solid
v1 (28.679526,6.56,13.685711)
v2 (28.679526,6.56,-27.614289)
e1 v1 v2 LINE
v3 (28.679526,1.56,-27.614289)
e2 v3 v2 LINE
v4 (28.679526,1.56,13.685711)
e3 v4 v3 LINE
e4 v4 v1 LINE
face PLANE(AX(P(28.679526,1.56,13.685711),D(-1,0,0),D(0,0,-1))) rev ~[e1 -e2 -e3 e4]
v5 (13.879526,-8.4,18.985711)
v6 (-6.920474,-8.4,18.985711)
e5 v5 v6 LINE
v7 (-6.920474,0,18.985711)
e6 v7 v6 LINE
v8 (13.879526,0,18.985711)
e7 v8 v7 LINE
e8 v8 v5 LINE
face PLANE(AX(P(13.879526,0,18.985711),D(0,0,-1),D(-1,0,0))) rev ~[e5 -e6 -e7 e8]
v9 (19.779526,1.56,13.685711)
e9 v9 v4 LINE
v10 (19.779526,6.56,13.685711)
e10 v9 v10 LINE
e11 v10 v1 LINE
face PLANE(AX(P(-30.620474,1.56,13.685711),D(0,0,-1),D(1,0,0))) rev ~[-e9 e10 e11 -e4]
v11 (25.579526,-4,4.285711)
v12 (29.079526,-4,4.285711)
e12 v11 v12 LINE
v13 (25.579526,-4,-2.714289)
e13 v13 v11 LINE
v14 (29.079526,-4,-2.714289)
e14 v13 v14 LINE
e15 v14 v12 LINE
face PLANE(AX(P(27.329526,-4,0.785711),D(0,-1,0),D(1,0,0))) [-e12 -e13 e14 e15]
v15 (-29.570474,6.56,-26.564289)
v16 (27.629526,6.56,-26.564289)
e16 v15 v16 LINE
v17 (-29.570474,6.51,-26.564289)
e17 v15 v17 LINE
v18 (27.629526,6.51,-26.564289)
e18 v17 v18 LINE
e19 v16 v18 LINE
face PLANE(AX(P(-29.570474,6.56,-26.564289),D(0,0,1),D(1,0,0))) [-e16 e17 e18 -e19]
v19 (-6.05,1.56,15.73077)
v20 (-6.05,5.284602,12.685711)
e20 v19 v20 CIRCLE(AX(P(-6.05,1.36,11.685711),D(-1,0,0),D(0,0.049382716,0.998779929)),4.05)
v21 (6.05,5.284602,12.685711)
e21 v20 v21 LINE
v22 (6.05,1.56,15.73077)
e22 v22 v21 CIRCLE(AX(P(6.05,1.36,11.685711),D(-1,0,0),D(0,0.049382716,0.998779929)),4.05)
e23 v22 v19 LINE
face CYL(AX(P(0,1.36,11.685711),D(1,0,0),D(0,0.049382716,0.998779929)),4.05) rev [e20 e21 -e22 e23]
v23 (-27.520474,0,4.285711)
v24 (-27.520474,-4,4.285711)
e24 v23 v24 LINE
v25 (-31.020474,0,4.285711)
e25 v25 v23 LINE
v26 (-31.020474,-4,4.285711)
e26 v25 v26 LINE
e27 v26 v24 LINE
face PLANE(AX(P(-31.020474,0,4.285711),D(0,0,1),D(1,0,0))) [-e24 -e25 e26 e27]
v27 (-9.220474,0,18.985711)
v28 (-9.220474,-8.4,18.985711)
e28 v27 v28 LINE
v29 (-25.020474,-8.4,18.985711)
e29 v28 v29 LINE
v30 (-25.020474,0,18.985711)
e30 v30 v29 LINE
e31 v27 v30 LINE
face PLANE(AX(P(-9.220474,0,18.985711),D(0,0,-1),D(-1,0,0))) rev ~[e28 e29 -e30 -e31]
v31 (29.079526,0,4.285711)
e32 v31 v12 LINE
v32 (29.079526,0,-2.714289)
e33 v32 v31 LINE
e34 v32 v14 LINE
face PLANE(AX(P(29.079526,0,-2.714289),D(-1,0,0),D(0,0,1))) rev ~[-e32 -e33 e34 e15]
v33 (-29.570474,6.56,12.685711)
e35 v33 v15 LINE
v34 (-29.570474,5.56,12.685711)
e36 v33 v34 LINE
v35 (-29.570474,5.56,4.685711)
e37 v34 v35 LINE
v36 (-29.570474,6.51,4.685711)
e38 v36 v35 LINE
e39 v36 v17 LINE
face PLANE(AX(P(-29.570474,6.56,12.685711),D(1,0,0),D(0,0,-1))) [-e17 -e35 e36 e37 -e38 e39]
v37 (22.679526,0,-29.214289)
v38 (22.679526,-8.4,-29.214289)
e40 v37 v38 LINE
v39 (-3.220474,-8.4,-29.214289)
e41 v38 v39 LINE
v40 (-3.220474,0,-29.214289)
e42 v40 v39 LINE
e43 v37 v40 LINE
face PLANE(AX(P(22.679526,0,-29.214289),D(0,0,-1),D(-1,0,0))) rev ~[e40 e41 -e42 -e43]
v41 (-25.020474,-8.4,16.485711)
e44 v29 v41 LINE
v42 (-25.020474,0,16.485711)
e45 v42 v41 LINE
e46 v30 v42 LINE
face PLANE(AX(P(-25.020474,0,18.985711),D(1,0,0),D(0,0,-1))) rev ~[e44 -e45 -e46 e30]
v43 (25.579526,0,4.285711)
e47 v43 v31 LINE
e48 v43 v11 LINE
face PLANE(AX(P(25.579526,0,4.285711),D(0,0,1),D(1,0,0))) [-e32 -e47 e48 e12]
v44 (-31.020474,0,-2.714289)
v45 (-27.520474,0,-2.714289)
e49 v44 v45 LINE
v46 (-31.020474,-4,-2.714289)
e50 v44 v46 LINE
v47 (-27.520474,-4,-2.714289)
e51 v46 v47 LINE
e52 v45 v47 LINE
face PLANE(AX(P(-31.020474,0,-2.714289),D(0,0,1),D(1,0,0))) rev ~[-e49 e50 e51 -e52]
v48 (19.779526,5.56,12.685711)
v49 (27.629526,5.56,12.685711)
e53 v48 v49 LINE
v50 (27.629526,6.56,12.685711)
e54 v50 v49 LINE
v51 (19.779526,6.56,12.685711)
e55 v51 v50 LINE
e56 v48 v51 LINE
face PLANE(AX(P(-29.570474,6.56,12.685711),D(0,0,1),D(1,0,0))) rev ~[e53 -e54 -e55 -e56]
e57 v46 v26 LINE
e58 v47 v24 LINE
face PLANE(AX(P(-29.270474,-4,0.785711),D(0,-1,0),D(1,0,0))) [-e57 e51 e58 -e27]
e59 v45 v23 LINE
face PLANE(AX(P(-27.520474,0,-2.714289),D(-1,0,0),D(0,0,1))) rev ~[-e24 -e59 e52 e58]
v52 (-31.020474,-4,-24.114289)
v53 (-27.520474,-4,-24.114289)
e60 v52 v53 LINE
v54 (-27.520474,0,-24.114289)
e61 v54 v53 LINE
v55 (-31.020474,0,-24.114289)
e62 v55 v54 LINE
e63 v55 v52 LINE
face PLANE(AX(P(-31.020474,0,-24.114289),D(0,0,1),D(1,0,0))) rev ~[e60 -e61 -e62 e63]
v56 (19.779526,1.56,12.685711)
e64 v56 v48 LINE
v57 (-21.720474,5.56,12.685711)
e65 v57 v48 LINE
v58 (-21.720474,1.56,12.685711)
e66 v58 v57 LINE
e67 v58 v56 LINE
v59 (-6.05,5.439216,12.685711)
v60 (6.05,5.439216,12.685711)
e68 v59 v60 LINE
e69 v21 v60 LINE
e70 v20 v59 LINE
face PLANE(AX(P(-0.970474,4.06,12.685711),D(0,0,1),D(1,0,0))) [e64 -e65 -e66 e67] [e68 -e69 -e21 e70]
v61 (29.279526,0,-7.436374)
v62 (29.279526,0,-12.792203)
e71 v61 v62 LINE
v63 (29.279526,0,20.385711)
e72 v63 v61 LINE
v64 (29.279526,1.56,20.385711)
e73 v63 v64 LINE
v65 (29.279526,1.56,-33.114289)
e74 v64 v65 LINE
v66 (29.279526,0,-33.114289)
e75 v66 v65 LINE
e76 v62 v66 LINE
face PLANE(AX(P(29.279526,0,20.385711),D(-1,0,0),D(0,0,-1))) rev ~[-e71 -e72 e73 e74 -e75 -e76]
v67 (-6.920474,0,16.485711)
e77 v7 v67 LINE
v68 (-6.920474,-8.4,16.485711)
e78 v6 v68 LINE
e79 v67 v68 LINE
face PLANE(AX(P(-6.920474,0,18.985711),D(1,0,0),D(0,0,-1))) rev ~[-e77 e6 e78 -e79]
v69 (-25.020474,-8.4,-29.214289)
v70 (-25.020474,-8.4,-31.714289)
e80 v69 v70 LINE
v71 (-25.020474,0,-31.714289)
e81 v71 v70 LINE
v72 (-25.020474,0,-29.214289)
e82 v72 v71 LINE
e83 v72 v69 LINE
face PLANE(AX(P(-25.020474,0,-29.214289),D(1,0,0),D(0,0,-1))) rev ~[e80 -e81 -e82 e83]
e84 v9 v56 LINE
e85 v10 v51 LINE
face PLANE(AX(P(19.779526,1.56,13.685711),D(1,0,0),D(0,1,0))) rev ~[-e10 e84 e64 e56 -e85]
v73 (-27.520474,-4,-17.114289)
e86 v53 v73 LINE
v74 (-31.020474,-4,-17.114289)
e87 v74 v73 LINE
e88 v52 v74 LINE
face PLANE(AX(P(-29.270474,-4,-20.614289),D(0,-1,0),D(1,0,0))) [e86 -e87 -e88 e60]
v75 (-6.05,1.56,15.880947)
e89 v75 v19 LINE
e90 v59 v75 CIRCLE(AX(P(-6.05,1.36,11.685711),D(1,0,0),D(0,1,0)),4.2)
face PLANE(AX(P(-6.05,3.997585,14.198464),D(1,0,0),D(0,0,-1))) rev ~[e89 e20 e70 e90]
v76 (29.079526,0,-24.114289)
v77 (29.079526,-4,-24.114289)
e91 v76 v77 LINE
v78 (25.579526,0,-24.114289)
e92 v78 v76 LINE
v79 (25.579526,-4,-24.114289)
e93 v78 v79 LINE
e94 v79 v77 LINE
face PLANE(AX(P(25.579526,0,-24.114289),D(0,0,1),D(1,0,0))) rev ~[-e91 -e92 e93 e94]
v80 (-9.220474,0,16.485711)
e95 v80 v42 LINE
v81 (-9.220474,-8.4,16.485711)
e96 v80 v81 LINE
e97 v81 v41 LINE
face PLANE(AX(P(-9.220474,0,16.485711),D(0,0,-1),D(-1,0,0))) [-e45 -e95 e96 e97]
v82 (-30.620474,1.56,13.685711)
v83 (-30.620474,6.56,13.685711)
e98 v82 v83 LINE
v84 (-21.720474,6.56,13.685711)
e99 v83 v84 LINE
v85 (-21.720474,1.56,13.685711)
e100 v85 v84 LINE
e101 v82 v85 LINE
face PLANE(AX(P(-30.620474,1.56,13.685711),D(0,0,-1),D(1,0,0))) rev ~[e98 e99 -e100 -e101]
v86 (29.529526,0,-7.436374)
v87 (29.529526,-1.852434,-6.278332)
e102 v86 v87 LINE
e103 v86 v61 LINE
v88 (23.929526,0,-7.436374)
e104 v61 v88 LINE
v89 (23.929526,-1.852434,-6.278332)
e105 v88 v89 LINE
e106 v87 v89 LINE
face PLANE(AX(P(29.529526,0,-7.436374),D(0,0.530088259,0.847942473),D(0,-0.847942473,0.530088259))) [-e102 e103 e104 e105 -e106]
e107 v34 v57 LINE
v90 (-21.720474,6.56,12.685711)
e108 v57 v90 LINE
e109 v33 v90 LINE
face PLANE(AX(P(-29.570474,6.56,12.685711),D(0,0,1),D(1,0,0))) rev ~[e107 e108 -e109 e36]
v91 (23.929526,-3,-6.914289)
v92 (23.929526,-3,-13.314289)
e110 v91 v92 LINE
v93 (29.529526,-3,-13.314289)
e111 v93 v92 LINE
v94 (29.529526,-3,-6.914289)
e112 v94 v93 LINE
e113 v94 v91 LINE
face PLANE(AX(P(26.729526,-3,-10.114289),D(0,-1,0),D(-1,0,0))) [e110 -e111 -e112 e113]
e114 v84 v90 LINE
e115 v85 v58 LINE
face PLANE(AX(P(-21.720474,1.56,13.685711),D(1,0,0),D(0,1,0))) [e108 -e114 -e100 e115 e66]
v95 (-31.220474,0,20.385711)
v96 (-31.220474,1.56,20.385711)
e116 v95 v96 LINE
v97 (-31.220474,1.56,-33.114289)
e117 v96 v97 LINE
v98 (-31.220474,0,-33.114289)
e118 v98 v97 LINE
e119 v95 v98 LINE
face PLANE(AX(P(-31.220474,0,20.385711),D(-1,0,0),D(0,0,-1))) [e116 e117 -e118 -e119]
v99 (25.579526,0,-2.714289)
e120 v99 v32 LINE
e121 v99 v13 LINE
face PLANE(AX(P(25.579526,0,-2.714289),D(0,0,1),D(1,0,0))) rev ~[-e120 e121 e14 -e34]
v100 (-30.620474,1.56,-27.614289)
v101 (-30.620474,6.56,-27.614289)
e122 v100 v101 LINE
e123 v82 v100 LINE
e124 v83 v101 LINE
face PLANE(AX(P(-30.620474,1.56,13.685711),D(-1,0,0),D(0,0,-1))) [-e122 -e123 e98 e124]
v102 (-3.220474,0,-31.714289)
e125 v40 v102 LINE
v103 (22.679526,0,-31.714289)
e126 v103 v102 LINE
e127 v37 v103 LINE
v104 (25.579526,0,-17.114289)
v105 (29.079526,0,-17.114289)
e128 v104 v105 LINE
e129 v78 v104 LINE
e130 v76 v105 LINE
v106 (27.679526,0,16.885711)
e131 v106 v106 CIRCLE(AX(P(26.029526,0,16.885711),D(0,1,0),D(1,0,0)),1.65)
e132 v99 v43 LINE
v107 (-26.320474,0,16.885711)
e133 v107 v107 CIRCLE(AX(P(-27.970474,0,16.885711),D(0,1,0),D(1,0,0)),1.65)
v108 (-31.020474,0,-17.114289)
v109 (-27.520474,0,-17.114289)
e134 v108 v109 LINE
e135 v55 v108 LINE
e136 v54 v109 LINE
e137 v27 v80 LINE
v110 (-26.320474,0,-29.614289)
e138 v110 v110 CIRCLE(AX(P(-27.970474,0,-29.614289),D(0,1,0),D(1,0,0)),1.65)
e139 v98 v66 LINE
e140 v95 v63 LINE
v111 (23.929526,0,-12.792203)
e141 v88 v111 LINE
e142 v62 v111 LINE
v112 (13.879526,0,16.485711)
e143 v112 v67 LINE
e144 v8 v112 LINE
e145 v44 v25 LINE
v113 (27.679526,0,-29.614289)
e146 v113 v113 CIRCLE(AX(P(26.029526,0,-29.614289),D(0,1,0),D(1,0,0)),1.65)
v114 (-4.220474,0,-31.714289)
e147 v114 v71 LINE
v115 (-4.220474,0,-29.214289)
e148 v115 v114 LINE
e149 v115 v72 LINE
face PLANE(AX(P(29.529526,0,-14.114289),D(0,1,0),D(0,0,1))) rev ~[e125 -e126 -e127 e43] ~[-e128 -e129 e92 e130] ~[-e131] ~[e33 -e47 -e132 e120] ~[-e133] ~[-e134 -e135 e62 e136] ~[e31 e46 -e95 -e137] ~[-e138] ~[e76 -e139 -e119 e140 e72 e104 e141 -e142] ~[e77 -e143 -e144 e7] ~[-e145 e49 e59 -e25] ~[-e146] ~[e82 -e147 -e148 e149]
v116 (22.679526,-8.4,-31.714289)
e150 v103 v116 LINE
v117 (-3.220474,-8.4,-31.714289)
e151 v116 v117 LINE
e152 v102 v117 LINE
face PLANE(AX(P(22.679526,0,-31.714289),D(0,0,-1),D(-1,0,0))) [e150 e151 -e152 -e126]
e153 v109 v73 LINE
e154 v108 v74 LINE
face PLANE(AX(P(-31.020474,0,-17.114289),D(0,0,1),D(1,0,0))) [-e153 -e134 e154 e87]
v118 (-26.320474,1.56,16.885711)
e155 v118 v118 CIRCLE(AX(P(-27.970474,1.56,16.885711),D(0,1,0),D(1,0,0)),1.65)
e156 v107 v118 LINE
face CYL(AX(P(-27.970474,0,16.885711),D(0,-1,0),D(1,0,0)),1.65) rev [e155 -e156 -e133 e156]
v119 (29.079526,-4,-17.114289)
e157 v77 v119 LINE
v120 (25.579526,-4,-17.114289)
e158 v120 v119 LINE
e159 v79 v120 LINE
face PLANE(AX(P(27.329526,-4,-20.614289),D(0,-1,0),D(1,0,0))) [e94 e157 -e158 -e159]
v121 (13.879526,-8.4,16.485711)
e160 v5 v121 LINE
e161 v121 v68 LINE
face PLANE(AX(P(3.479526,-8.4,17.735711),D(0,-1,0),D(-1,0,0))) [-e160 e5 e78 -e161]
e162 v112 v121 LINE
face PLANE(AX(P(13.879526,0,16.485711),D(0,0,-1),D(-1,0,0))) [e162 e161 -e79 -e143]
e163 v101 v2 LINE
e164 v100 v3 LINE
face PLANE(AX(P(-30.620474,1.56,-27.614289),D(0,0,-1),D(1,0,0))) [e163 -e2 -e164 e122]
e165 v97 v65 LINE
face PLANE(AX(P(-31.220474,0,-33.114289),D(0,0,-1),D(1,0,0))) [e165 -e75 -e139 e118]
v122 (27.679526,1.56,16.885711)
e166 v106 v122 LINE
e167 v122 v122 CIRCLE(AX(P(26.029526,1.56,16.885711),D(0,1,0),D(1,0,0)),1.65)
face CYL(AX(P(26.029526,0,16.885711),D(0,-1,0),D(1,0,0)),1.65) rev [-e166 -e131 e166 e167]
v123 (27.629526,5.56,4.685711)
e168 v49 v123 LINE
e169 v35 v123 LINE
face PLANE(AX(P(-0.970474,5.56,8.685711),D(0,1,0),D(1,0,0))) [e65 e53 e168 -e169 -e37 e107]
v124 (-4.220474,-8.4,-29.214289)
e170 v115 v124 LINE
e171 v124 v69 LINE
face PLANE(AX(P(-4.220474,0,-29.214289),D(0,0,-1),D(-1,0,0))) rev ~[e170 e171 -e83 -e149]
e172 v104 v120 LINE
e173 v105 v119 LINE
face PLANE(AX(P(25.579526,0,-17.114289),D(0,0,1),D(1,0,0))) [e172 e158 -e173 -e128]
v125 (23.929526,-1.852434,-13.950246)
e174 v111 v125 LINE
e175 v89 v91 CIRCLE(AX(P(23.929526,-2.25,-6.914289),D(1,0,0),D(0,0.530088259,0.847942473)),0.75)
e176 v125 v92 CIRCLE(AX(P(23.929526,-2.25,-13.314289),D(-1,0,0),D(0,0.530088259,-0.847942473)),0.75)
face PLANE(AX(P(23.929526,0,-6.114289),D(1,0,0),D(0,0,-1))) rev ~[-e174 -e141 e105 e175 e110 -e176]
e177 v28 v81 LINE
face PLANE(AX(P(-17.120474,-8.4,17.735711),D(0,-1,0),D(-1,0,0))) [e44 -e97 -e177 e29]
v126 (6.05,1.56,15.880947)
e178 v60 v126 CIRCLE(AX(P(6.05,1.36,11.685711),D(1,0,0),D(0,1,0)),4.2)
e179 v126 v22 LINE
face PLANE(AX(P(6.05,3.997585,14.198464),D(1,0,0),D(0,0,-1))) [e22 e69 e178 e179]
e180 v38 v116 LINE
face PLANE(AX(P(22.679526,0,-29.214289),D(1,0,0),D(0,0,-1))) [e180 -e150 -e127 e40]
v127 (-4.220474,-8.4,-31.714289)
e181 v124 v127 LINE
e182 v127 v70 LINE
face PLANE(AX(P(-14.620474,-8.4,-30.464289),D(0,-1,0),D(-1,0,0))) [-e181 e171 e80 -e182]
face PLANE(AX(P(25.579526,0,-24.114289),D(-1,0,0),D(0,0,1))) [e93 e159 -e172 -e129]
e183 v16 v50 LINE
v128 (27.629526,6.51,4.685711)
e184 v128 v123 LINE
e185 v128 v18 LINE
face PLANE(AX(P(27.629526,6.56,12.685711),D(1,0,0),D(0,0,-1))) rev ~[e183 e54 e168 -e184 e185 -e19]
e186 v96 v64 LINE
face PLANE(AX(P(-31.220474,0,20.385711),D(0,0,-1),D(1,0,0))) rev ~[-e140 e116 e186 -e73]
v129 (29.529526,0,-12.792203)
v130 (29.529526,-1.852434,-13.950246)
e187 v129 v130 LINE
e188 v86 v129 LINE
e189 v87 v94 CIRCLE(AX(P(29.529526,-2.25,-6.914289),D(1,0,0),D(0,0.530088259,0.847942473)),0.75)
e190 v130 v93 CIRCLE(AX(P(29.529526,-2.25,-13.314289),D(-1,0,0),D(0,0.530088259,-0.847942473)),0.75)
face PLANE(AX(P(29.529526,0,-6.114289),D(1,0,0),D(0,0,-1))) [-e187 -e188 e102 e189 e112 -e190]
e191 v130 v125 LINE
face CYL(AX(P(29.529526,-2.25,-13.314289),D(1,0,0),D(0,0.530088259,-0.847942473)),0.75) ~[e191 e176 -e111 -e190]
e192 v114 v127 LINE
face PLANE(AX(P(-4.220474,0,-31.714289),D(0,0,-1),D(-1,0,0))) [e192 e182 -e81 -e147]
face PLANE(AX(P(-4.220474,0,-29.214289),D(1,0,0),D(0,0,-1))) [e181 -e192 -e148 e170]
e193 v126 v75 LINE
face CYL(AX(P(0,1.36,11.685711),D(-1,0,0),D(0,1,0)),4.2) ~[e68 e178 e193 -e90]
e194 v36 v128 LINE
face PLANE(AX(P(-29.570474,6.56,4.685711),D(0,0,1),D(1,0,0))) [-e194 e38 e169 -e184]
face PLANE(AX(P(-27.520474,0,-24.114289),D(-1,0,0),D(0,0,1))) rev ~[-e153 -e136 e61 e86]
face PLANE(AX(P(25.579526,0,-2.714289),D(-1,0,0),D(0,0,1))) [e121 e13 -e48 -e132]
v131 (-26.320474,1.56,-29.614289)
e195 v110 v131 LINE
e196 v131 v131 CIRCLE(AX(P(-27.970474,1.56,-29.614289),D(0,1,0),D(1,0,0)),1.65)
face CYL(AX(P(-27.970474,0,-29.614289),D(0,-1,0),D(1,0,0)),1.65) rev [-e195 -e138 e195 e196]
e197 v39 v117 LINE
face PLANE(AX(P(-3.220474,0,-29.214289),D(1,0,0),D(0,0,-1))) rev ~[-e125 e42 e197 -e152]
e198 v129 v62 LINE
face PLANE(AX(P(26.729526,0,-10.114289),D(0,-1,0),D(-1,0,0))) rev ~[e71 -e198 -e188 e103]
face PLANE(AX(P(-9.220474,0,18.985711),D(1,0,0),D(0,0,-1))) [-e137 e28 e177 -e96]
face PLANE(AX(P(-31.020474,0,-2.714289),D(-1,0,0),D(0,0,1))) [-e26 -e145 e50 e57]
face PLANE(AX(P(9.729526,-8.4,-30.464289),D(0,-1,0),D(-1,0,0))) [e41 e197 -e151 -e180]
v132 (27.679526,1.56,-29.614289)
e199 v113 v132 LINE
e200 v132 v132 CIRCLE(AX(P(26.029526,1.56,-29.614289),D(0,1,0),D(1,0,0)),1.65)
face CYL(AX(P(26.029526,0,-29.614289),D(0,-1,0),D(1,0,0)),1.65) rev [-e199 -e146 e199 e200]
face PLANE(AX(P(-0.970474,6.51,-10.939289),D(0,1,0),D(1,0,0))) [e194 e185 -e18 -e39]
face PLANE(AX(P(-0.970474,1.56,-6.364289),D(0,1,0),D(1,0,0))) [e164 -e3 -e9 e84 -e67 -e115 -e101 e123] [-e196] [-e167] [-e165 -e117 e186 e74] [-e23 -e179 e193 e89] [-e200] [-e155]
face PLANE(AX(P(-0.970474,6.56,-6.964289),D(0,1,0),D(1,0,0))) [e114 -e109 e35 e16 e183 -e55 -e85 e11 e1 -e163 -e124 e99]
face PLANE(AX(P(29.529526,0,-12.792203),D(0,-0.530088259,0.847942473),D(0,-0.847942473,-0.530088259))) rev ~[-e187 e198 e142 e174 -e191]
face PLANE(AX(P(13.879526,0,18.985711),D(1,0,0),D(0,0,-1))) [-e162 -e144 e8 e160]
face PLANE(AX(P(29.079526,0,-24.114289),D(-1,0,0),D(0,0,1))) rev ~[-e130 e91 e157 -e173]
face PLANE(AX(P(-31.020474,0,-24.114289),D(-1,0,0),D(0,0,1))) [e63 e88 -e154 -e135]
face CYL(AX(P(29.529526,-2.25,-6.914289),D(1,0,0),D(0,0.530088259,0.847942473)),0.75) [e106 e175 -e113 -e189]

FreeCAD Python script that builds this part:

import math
import FreeCAD as App
import Part
import Sketcher

doc = App.newDocument("Part")
params = doc.addObject("Spreadsheet::Sheet", "Params")
for row, (alias, value) in enumerate([
    ("sketch1_diameter", "3.3 mm"),
    ("sketch1_width", "60.5 mm"),
    ("sketch1_height", "53.5 mm"),
    ("pad1_length", "1.56 mm"),
    ("sketch2_width", "59.3 mm"),
    ("sketch2_height", "41.3 mm"),
    ("pad2_length", "5 mm"),
    ("sketch3_height", "5 mm"),
    ("sketch3_width", "41.5 mm"),
    ("pocket1_length", "1 mm"),
    ("sketch4_radius", "4.2 mm"),
    ("sketch4_radius2", "4.05 mm"),
    ("pad3_length", "6.05 mm"),
    ("pad3_length2", "6.05 mm"),
    ("sketch5_width", "15.8 mm"),
    ("sketch5_width2", "20.8 mm"),
    ("sketch5_width3", "25.9 mm"),
    ("sketch5_height", "2.5 mm"),
    ("pad4_length", "8.4 mm"),
    ("sketch6_height", "7 mm"),
    ("sketch6_width", "3.5 mm"),
    ("pad5_length", "4 mm"),
    ("sketch7_height", "8 mm"),
    ("sketch7_width", "57.2 mm"),
    ("pocket2_length", "1 mm"),
    ("sketch8_width", "57.2 mm"),
    ("sketch8_height", "31.25 mm"),
    ("pocket3_length", "0.05 mm"),
    ("sketch9_height", "8 mm"),
    ("sketch9_width", "5.6 mm"),
    ("pad6_length", "3 mm"),
    ("sketch10_width", "3 mm"),
    ("sketch10_radius", "0.75 mm"),
    ("sketch10_height", "0.8 mm"),
    ("pocket4_length", "5.6 mm"),
], start=1):
    params.set(f"A{row}", alias)
    params.set(f"B{row}", "=" + value)
    params.setAlias(f"B{row}", alias)

body = doc.addObject("PartDesign::Body", "Body")

sketch1 = body.newObject("Sketcher::SketchObject", "Sketch")
sketch1.AttachmentSupport = (doc.getObject("XZ_Plane"), [""])
sketch1.MapMode = "FlatFace"
sketch1.addGeometry([
    Part.LineSegment(App.Vector(-31.2, -33.1, 0), App.Vector(-31.2, 20.4, 0)),
    Part.LineSegment(App.Vector(-31.2, 20.4, 0), App.Vector(29.3, 20.4, 0)),
    Part.LineSegment(App.Vector(29.3, 20.4, 0), App.Vector(29.3, -33.1, 0)),
    Part.LineSegment(App.Vector(29.3, -33.1, 0), App.Vector(-31.2, -33.1, 0)),
    Part.Circle(App.Vector(-28, 16.9, 0), App.Vector(0, 0, 1), 1.6),
    Part.Circle(App.Vector(26, 16.9, 0), App.Vector(0, 0, 1), 1.6),
    Part.Circle(App.Vector(-28, -29.6, 0), App.Vector(0, 0, 1), 1.6),
    Part.Circle(App.Vector(26, -29.6, 0), App.Vector(0, 0, 1), 1.6),
], False)
sketch1.addConstraint([
    Sketcher.Constraint("Coincident", 0, 2, 1, 1),
    Sketcher.Constraint("Coincident", 1, 2, 2, 1),
    Sketcher.Constraint("Coincident", 2, 2, 3, 1),
    Sketcher.Constraint("Coincident", 3, 2, 0, 1),
    Sketcher.Constraint("Vertical", 0),
    Sketcher.Constraint("Horizontal", 1),
    Sketcher.Constraint("Vertical", 2),
    Sketcher.Constraint("Horizontal", 3),
    Sketcher.Constraint("Equal", 4, 5),
    Sketcher.Constraint("Equal", 5, 6),
    Sketcher.Constraint("Equal", 6, 7),
    Sketcher.Constraint("Horizontal", 4, 3, 5, 3),
    Sketcher.Constraint("Horizontal", 6, 3, 7, 3),
    Sketcher.Constraint("Vertical", 4, 3, 6, 3),
    Sketcher.Constraint("Vertical", 5, 3, 7, 3),
    Sketcher.Constraint("Diameter", 4, 3.3),
    Sketcher.Constraint("DistanceX", 1, 1, 1, 2, 60.5),
    Sketcher.Constraint("DistanceY", 0, 1, 0, 2, 53.5),
    Sketcher.Constraint("DistanceX", 4, 3, 5, 3, 54.0),
    Sketcher.Constraint("DistanceY", 6, 3, 0, 2, 50.0),
    Sketcher.Constraint("DistanceY", 2, 2, 5, 3, 50.0),
    Sketcher.Constraint("DistanceX", 0, 2, 4, 3, 3.25),
    Sketcher.Constraint("DistanceY", -1, 1, 4, 3, 16.885711),
    Sketcher.Constraint("DistanceX", 4, 3, -1, 1, 27.970474),
])
sketch1.setExpression("Constraints[15]", "Params.sketch1_diameter")
sketch1.setExpression("Constraints[16]", "Params.sketch1_width")
sketch1.setExpression("Constraints[17]", "Params.sketch1_height")
pad1 = body.newObject("PartDesign::Pad", "Pad")
pad1.Profile = sketch1
pad1.setExpression("Length", "Params.pad1_length")
pad1.Reversed = True

sketch2 = body.newObject("Sketcher::SketchObject", "Sketch001")
sketch2.AttachmentSupport = (doc.getObject("XZ_Plane"), [""])
sketch2.MapMode = "FlatFace"
sketch2.AttachmentOffset = App.Placement(App.Vector(0, 0, -1.56), App.Rotation())
sketch2.addGeometry([
    Part.LineSegment(App.Vector(-31, -28, 0), App.Vector(-31, 14, 0)),
    Part.LineSegment(App.Vector(-31, 14, 0), App.Vector(29, 14, 0)),
    Part.LineSegment(App.Vector(29, 14, 0), App.Vector(29, -28, 0)),
    Part.LineSegment(App.Vector(29, -28, 0), App.Vector(-31, -28, 0)),
], False)
sketch2.addConstraint([
    Sketcher.Constraint("Coincident", 0, 2, 1, 1),
    Sketcher.Constraint("Coincident", 1, 2, 2, 1),
    Sketcher.Constraint("Coincident", 2, 2, 3, 1),
    Sketcher.Constraint("Coincident", 3, 2, 0, 1),
    Sketcher.Constraint("Vertical", 0),
    Sketcher.Constraint("Horizontal", 1),
    Sketcher.Constraint("Vertical", 2),
    Sketcher.Constraint("Horizontal", 3),
    Sketcher.Constraint("DistanceX", 1, 1, 1, 2, 59.3),
    Sketcher.Constraint("DistanceY", 0, 1, 0, 2, 41.3),
    Sketcher.Constraint("DistanceY", -1, 1, 0, 2, 13.685711),
    Sketcher.Constraint("DistanceX", 0, 2, -1, 1, 30.620474),
])
sketch2.setExpression("Constraints[8]", "Params.sketch2_width")
sketch2.setExpression("Constraints[9]", "Params.sketch2_height")
pad2 = body.newObject("PartDesign::Pad", "Pad001")
pad2.Profile = sketch2
pad2.setExpression("Length", "Params.pad2_length")
pad2.Reversed = True

sketch3 = body.newObject("Sketcher::SketchObject", "Sketch002")
sketch3.AttachmentSupport = (doc.getObject("XY_Plane"), [""])
sketch3.MapMode = "FlatFace"
sketch3.AttachmentOffset = App.Placement(App.Vector(0, 0, 13.685711), App.Rotation())
sketch3.addGeometry([
    Part.LineSegment(App.Vector(-22, 7, 0), App.Vector(-22, 2, 0)),
    Part.LineSegment(App.Vector(-22, 2, 0), App.Vector(20, 2, 0)),
    Part.LineSegment(App.Vector(20, 2, 0), App.Vector(20, 7, 0)),
    Part.LineSegment(App.Vector(20, 7, 0), App.Vector(-22, 7, 0)),
], False)
sketch3.addConstraint([
    Sketcher.Constraint("Coincident", 0, 2, 1, 1),
    Sketcher.Constraint("Coincident", 1, 2, 2, 1),
    Sketcher.Constraint("Coincident", 2, 2, 3, 1),
    Sketcher.Constraint("Coincident", 3, 2, 0, 1),
    Sketcher.Constraint("Vertical", 0),
    Sketcher.Constraint("Horizontal", 1),
    Sketcher.Constraint("Vertical", 2),
    Sketcher.Constraint("Horizontal", 3),
    Sketcher.Constraint("DistanceY", 0, 2, 0, 1, 5.0),
    Sketcher.Constraint("DistanceX", 1, 1, 1, 2, 41.5),
    Sketcher.Constraint("DistanceY", -1, 1, 0, 2, 1.56),
    Sketcher.Constraint("DistanceX", 0, 2, -1, 1, 21.720474),
])
sketch3.setExpression("Constraints[8]", "Params.sketch3_height")
sketch3.setExpression("Constraints[9]", "Params.sketch3_width")
pocket1 = body.newObject("PartDesign::Pocket", "Pocket")
pocket1.Profile = sketch3
pocket1.setExpression("Length", "Params.pocket1_length")

sketch4 = body.newObject("Sketcher::SketchObject", "Sketch003")
sketch4.AttachmentSupport = (doc.getObject("YZ_Plane"), [""])
sketch4.MapMode = "FlatFace"
sketch4.addGeometry([
    Part.LineSegment(App.Vector(5.41, 11.69, 0), App.Vector(5.56, 11.69, 0)),
    Part.ArcOfCircle(Part.Circle(App.Vector(1.36, 11.69, 0), App.Vector(0, 0, 1), 4.2), math.radians(0), math.radians(87)),
    Part.LineSegment(App.Vector(1.56, 15.88, 0), App.Vector(1.56, 15.73, 0)),
    Part.ArcOfCircle(Part.Circle(App.Vector(1.36, 11.69, 0), App.Vector(0, 0, 1), 4.05), math.radians(0), math.radians(87)),
], False)
sketch4.addConstraint([
    Sketcher.Constraint("Coincident", 0, 2, 1, 1),
    Sketcher.Constraint("Coincident", 1, 2, 2, 1),
    Sketcher.Constraint("Coincident", 2, 2, 3, 2),
    Sketcher.Constraint("Coincident", 3, 1, 0, 1),
    Sketcher.Constraint("Horizontal", 0),
    Sketcher.Constraint("Vertical", 2),
    Sketcher.Constraint("Coincident", 3, 3, 1, 3),
    Sketcher.Constraint("Horizontal", 3, 3, 0, 2),
    Sketcher.Constraint("Radius", 1, 4.2),
    Sketcher.Constraint("Radius", 3, 4.05),
    Sketcher.Constraint("DistanceX", 1, 2, 0, 2, 4.0),
    Sketcher.Constraint("DistanceX", -1, 1, 1, 3, 1.36),
    Sketcher.Constraint("DistanceY", -1, 1, 1, 3, 11.685711),
])
sketch4.setExpression("Constraints[8]", "Params.sketch4_radius")
sketch4.setExpression("Constraints[9]", "Params.sketch4_radius2")
pad3 = body.newObject("PartDesign::Pad", "Pad002")
pad3.Profile = sketch4
pad3.Type = "TwoLengths"
pad3.setExpression("Length", "Params.pad3_length")
pad3.setExpression("Length2", "Params.pad3_length2")

sketch5 = body.newObject("Sketcher::SketchObject", "Sketch004")
sketch5.AttachmentSupport = (doc.getObject("XZ_Plane"), [""])
sketch5.MapMode = "FlatFace"
sketch5.addGeometry([
    Part.LineSegment(App.Vector(-9.2, 16.5, 0), App.Vector(-9.2, 19, 0)),
    Part.LineSegment(App.Vector(-9.2, 19, 0), App.Vector(-25, 19, 0)),
    Part.LineSegment(App.Vector(-25, 19, 0), App.Vector(-25, 16.5, 0)),
    Part.LineSegment(App.Vector(-25, 16.5, 0), App.Vector(-9.2, 16.5, 0)),
    Part.LineSegment(App.Vector(13.9, 16.5, 0), App.Vector(13.9, 19, 0)),
    Part.LineSegment(App.Vector(13.9, 19, 0), App.Vector(-6.9, 19, 0)),
    Part.LineSegment(App.Vector(-6.9, 19, 0), App.Vector(-6.9, 16.5, 0)),
    Part.LineSegment(App.Vector(-6.9, 16.5, 0), App.Vector(13.9, 16.5, 0)),
    Part.LineSegment(App.Vector(-4.2, -31.7, 0), App.Vector(-4.2, -29.2, 0)),
    Part.LineSegment(App.Vector(-4.2, -29.2, 0), App.Vector(-25, -29.2, 0)),
    Part.LineSegment(App.Vector(-25, -29.2, 0), App.Vector(-25, -31.7, 0)),
    Part.LineSegment(App.Vector(-25, -31.7, 0), App.Vector(-4.2, -31.7, 0)),
    Part.LineSegment(App.Vector(22.7, -31.7, 0), App.Vector(22.7, -29.2, 0)),
    Part.LineSegment(App.Vector(22.7, -29.2, 0), App.Vector(-3.2, -29.2, 0)),
    Part.LineSegment(App.Vector(-3.2, -29.2, 0), App.Vector(-3.2, -31.7, 0)),
    Part.LineSegment(App.Vector(-3.2, -31.7, 0), App.Vector(22.7, -31.7, 0)),
], False)
sketch5.addConstraint([
    Sketcher.Constraint("Coincident", 0, 2, 1, 1),
    Sketcher.Constraint("Coincident", 1, 2, 2, 1),
    Sketcher.Constraint("Coincident", 2, 2, 3, 1),
    Sketcher.Constraint("Coincident", 3, 2, 0, 1),
    Sketcher.Constraint("Coincident", 4, 2, 5, 1),
    Sketcher.Constraint("Coincident", 5, 2, 6, 1),
    Sketcher.Constraint("Coincident", 6, 2, 7, 1),
    Sketcher.Constraint("Coincident", 7, 2, 4, 1),
    Sketcher.Constraint("Coincident", 8, 2, 9, 1),
    Sketcher.Constraint("Coincident", 9, 2, 10, 1),
    Sketcher.Constraint("Coincident", 10, 2, 11, 1),
    Sketcher.Constraint("Coincident", 11, 2, 8, 1),
    Sketcher.Constraint("Coincident", 12, 2, 13, 1),
    Sketcher.Constraint("Coincident", 13, 2, 14, 1),
    Sketcher.Constraint("Coincident", 14, 2, 15, 1),
    Sketcher.Constraint("Coincident", 15, 2, 12, 1),
    Sketcher.Constraint("Vertical", 0),
    Sketcher.Constraint("Horizontal", 1),
    Sketcher.Constraint("Vertical", 2),
    Sketcher.Constraint("Horizontal", 3),
    Sketcher.Constraint("Vertical", 4),
    Sketcher.Constraint("Horizontal", 5),
    Sketcher.Constraint("Vertical", 6),
    Sketcher.Constraint("Horizontal", 7),
    Sketcher.Constraint("Vertical", 8),
    Sketcher.Constraint("Horizontal", 9),
    Sketcher.Constraint("Vertical", 10),
    Sketcher.Constraint("Horizontal", 11),
    Sketcher.Constraint("Vertical", 12),
    Sketcher.Constraint("Horizontal", 13),
    Sketcher.Constraint("Vertical", 14),
    Sketcher.Constraint("Horizontal", 15),
    Sketcher.Constraint("Horizontal", 1, 2, 4, 2),
    Sketcher.Constraint("Horizontal", 3, 2, 6, 2),
    Sketcher.Constraint("Horizontal", 9, 2, 12, 2),
    Sketcher.Constraint("Horizontal", 11, 2, 14, 2),
    Sketcher.Constraint("Vertical", 2, 2, 9, 2),
    Sketcher.Constraint("Equal", 7, 9),
    Sketcher.Constraint("Equal", 6, 8),
    Sketcher.Constraint("DistanceX", 1, 2, 1, 1, 15.8),
    Sketcher.Constraint("DistanceX", 5, 2, 5, 1, 20.8),
    Sketcher.Constraint("DistanceX", 13, 2, 13, 1, 25.9),
    Sketcher.Constraint("DistanceY", 0, 1, 0, 2, 2.5),
    Sketcher.Constraint("DistanceX", 8, 2, 13, 2, 1.0),
    Sketcher.Constraint("DistanceX", 0, 2, 4, 2, 23.1),
    Sketcher.Constraint("DistanceY", 8, 2, 6, 2, 45.7),
    Sketcher.Constraint("DistanceY", -1, 1, 0, 2, 18.985711),
    Sketcher.Constraint("DistanceX", 0, 2, -1, 1, 9.220474),
])
sketch5.setExpression("Constraints[39]", "Params.sketch5_width")
sketch5.setExpression("Constraints[40]", "Params.sketch5_width2")
sketch5.setExpression("Constraints[41]", "Params.sketch5_width3")
sketch5.setExpression("Constraints[42]", "Params.sketch5_height")
pad4 = body.newObject("PartDesign::Pad", "Pad003")
pad4.Profile = sketch5
pad4.setExpression("Length", "Params.pad4_length")

sketch6 = body.newObject("Sketcher::SketchObject", "Sketch005")
sketch6.AttachmentSupport = (doc.getObject("XZ_Plane"), [""])
sketch6.MapMode = "FlatFace"
sketch6.addGeometry([
    Part.LineSegment(App.Vector(-31, 4.3, 0), App.Vector(-31, -2.7, 0)),
    Part.LineSegment(App.Vector(-31, -2.7, 0), App.Vector(-27.5, -2.7, 0)),
    Part.LineSegment(App.Vector(-27.5, -2.7, 0), App.Vector(-27.5, 4.3, 0)),
    Part.LineSegment(App.Vector(-27.5, 4.3, 0), App.Vector(-31, 4.3, 0)),
    Part.LineSegment(App.Vector(-31, -17.1, 0), App.Vector(-31, -24.1, 0)),
    Part.LineSegment(App.Vector(-31, -24.1, 0), App.Vector(-27.5, -24.1, 0)),
    Part.LineSegment(App.Vector(-27.5, -24.1, 0), App.Vector(-27.5, -17.1, 0)),
    Part.LineSegment(App.Vector(-27.5, -17.1, 0), App.Vector(-31, -17.1, 0)),
    Part.LineSegment(App.Vector(25.6, 4.3, 0), App.Vector(25.6, -2.7, 0)),
    Part.LineSegment(App.Vector(25.6, -2.7, 0), App.Vector(29.1, -2.7, 0)),
    Part.LineSegment(App.Vector(29.1, -2.7, 0), App.Vector(29.1, 4.3, 0)),
    Part.LineSegment(App.Vector(29.1, 4.3, 0), App.Vector(25.6, 4.3, 0)),
    Part.LineSegment(App.Vector(25.6, -17.1, 0), App.Vector(25.6, -24.1, 0)),
    Part.LineSegment(App.Vector(25.6, -24.1, 0), App.Vector(29.1, -24.1, 0)),
    Part.LineSegment(App.Vector(29.1, -24.1, 0), App.Vector(29.1, -17.1, 0)),
    Part.LineSegment(App.Vector(29.1, -17.1, 0), App.Vector(25.6, -17.1, 0)),
], False)
sketch6.addConstraint([
    Sketcher.Constraint("Coincident", 0, 2, 1, 1),
    Sketcher.Constraint("Coincident", 1, 2, 2, 1),
    Sketcher.Constraint("Coincident", 2, 2, 3, 1),
    Sketcher.Constraint("Coincident", 3, 2, 0, 1),
    Sketcher.Constraint("Coincident", 4, 2, 5, 1),
    Sketcher.Constraint("Coincident", 5, 2, 6, 1),
    Sketcher.Constraint("Coincident", 6, 2, 7, 1),
    Sketcher.Constraint("Coincident", 7, 2, 4, 1),
    Sketcher.Constraint("Coincident", 8, 2, 9, 1),
    Sketcher.Constraint("Coincident", 9, 2, 10, 1),
    Sketcher.Constraint("Coincident", 10, 2, 11, 1),
    Sketcher.Constraint("Coincident", 11, 2, 8, 1),
    Sketcher.Constraint("Coincident", 12, 2, 13, 1),
    Sketcher.Constraint("Coincident", 13, 2, 14, 1),
    Sketcher.Constraint("Coincident", 14, 2, 15, 1),
    Sketcher.Constraint("Coincident", 15, 2, 12, 1),
    Sketcher.Constraint("Vertical", 0),
    Sketcher.Constraint("Horizontal", 1),
    Sketcher.Constraint("Vertical", 2),
    Sketcher.Constraint("Horizontal", 3),
    Sketcher.Constraint("Vertical", 4),
    Sketcher.Constraint("Horizontal", 5),
    Sketcher.Constraint("Vertical", 6),
    Sketcher.Constraint("Horizontal", 7),
    Sketcher.Constraint("Vertical", 8),
    Sketcher.Constraint("Horizontal", 9),
    Sketcher.Constraint("Vertical", 10),
    Sketcher.Constraint("Horizontal", 11),
    Sketcher.Constraint("Vertical", 12),
    Sketcher.Constraint("Horizontal", 13),
    Sketcher.Constraint("Vertical", 14),
    Sketcher.Constraint("Horizontal", 15),
    Sketcher.Constraint("Horizontal", 1, 2, 8, 2),
    Sketcher.Constraint("Horizontal", 3, 2, 10, 2),
    Sketcher.Constraint("Horizontal", 5, 2, 12, 2),
    Sketcher.Constraint("Horizontal", 7, 2, 14, 2),
    Sketcher.Constraint("Vertical", 3, 2, 4, 2),
    Sketcher.Constraint("Vertical", 2, 2, 5, 2),
    Sketcher.Constraint("Vertical", 11, 2, 12, 2),
    Sketcher.Constraint("Vertical", 10, 2, 13, 2),
    Sketcher.Constraint("Equal", 7, 9),
    Sketcher.Constraint("Equal", 2, 4),
    Sketcher.Constraint("DistanceY", 0, 2, 0, 1, 7.0),
    Sketcher.Constraint("DistanceX", 1, 1, 1, 2, 3.5),
    Sketcher.Constraint("DistanceY", 4, 2, 0, 2, 21.4),
    Sketcher.Constraint("DistanceX", 1, 2, 8, 2, 53.1),
    Sketcher.Constraint("DistanceY", 0, 2, -1, 1, 2.714289),
    Sketcher.Constraint("DistanceX", 0, 2, -1, 1, 31.020474),
])
sketch6.setExpression("Constraints[42]", "Params.sketch6_height")
sketch6.setExpression("Constraints[43]", "Params.sketch6_width")
pad5 = body.newObject("PartDesign::Pad", "Pad004")
pad5.Profile = sketch6
pad5.setExpression("Length", "Params.pad5_length")

sketch7 = body.newObject("Sketcher::SketchObject", "Sketch006")
sketch7.AttachmentSupport = (doc.getObject("XZ_Plane"), [""])
sketch7.MapMode = "FlatFace"
sketch7.AttachmentOffset = App.Placement(App.Vector(0, 0, -6.56), App.Rotation())
sketch7.addGeometry([
    Part.LineSegment(App.Vector(-30, 5, 0), App.Vector(-30, 13, 0)),
    Part.LineSegment(App.Vector(-30, 13, 0), App.Vector(28, 13, 0)),
    Part.LineSegment(App.Vector(28, 13, 0), App.Vector(28, 5, 0)),
    Part.LineSegment(App.Vector(28, 5, 0), App.Vector(-30, 5, 0)),
], False)
sketch7.addConstraint([
    Sketcher.Constraint("Coincident", 0, 2, 1, 1),
    Sketcher.Constraint("Coincident", 1, 2, 2, 1),
    Sketcher.Constraint("Coincident", 2, 2, 3, 1),
    Sketcher.Constraint("Coincident", 3, 2, 0, 1),
    Sketcher.Constraint("Vertical", 0),
    Sketcher.Constraint("Horizontal", 1),
    Sketcher.Constraint("Vertical", 2),
    Sketcher.Constraint("Horizontal", 3),
    Sketcher.Constraint("DistanceY", 0, 1, 0, 2, 8.0),
    Sketcher.Constraint("DistanceX", 1, 1, 1, 2, 57.2),
    Sketcher.Constraint("DistanceY", -1, 1, 0, 2, 12.685711),
    Sketcher.Constraint("DistanceX", 0, 2, -1, 1, 29.570474),
])
sketch7.setExpression("Constraints[8]", "Params.sketch7_height")
sketch7.setExpression("Constraints[9]", "Params.sketch7_width")
pocket2 = body.newObject("PartDesign::Pocket", "Pocket001")
pocket2.Profile = sketch7
pocket2.setExpression("Length", "Params.pocket2_length")
pocket2.Reversed = True

sketch8 = body.newObject("Sketcher::SketchObject", "Sketch007")
sketch8.AttachmentSupport = (doc.getObject("XZ_Plane"), [""])
sketch8.MapMode = "FlatFace"
sketch8.AttachmentOffset = App.Placement(App.Vector(0, 0, -6.56), App.Rotation())
sketch8.addGeometry([
    Part.LineSegment(App.Vector(-30, -27, 0), App.Vector(-30, 5, 0)),
    Part.LineSegment(App.Vector(-30, 5, 0), App.Vector(28, 5, 0)),
    Part.LineSegment(App.Vector(28, 5, 0), App.Vector(28, -27, 0)),
    Part.LineSegment(App.Vector(28, -27, 0), App.Vector(-30, -27, 0)),
], False)
sketch8.addConstraint([
    Sketcher.Constraint("Coincident", 0, 2, 1, 1),
    Sketcher.Constraint("Coincident", 1, 2, 2, 1),
    Sketcher.Constraint("Coincident", 2, 2, 3, 1),
    Sketcher.Constraint("Coincident", 3, 2, 0, 1),
    Sketcher.Constraint("Vertical", 0),
    Sketcher.Constraint("Horizontal", 1),
    Sketcher.Constraint("Vertical", 2),
    Sketcher.Constraint("Horizontal", 3),
    Sketcher.Constraint("DistanceX", 1, 1, 1, 2, 57.2),
    Sketcher.Constraint("DistanceY", 0, 1, 0, 2, 31.25),
    Sketcher.Constraint("DistanceY", -1, 1, 0, 2, 4.685711),
    Sketcher.Constraint("DistanceX", 0, 2, -1, 1, 29.570474),
])
sketch8.setExpression("Constraints[8]", "Params.sketch8_width")
sketch8.setExpression("Constraints[9]", "Params.sketch8_height")
pocket3 = body.newObject("PartDesign::Pocket", "Pocket002")
pocket3.Profile = sketch8
pocket3.setExpression("Length", "Params.pocket3_length")
pocket3.Reversed = True

sketch9 = body.newObject("Sketcher::SketchObject", "Sketch008")
sketch9.AttachmentSupport = (doc.getObject("XZ_Plane"), [""])
sketch9.MapMode = "FlatFace"
sketch9.addGeometry([
    Part.LineSegment(App.Vector(30, -14, 0), App.Vector(30, -6, 0)),
    Part.LineSegment(App.Vector(30, -6, 0), App.Vector(24, -6, 0)),
    Part.LineSegment(App.Vector(24, -6, 0), App.Vector(24, -14, 0)),
    Part.LineSegment(App.Vector(24, -14, 0), App.Vector(30, -14, 0)),
], False)
sketch9.addConstraint([
    Sketcher.Constraint("Coincident", 0, 2, 1, 1),
    Sketcher.Constraint("Coincident", 1, 2, 2, 1),
    Sketcher.Constraint("Coincident", 2, 2, 3, 1),
    Sketcher.Constraint("Coincident", 3, 2, 0, 1),
    Sketcher.Constraint("Vertical", 0),
    Sketcher.Constraint("Horizontal", 1),
    Sketcher.Constraint("Vertical", 2),
    Sketcher.Constraint("Horizontal", 3),
    Sketcher.Constraint("DistanceY", 0, 1, 0, 2, 8.0),
    Sketcher.Constraint("DistanceX", 1, 2, 1, 1, 5.6),
    Sketcher.Constraint("DistanceY", 0, 2, -1, 1, 6.114289),
    Sketcher.Constraint("DistanceX", -1, 1, 0, 2, 29.529526),
])
sketch9.setExpression("Constraints[8]", "Params.sketch9_height")
sketch9.setExpression("Constraints[9]", "Params.sketch9_width")
pad6 = body.newObject("PartDesign::Pad", "Pad005")
pad6.Profile = sketch9
pad6.setExpression("Length", "Params.pad6_length")

sketch10 = body.newObject("Sketcher::SketchObject", "Sketch009")
sketch10.AttachmentSupport = (doc.getObject("YZ_Plane"), [""])
sketch10.MapMode = "FlatFace"
sketch10.AttachmentOffset = App.Placement(App.Vector(0, 0, 29.529526), App.Rotation())
sketch10.addGeometry([
    Part.LineSegment(App.Vector(-1.9, -6.3, 0), App.Vector(0, -7.4, 0)),
    Part.LineSegment(App.Vector(0, -7.4, 0), App.Vector(0, -6.1, 0)),
    Part.LineSegment(App.Vector(0, -6.1, 0), App.Vector(-3, -6.1, 0)),
    Part.LineSegment(App.Vector(-3, -6.1, 0), App.Vector(-3, -6.9, 0)),
    Part.ArcOfCircle(Part.Circle(App.Vector(-2.2, -6.9, 0), App.Vector(0, 0, 1), 0.8), math.radians(58), math.radians(180)),
    Part.LineSegment(App.Vector(0, -12.8, 0), App.Vector(-1.9, -14, 0)),
    Part.ArcOfCircle(Part.Circle(App.Vector(-2.2, -13.3, 0), App.Vector(0, 0, 1), 0.8), math.radians(180), math.radians(302)),
    Part.LineSegment(App.Vector(-3, -13.3, 0), App.Vector(-3, -14.1, 0)),
    Part.LineSegment(App.Vector(-3, -14.1, 0), App.Vector(0, -14.1, 0)),
    Part.LineSegment(App.Vector(0, -14.1, 0), App.Vector(0, -12.8, 0)),
], False)
sketch10.addConstraint([
    Sketcher.Constraint("Coincident", 0, 2, 1, 1),
    Sketcher.Constraint("Coincident", 1, 2, 2, 1),
    Sketcher.Constraint("Coincident", 2, 2, 3, 1),
    Sketcher.Constraint("Tangent", 3, 2, 4, 2),
    Sketcher.Constraint("Tangent", 4, 1, 0, 1),
    Sketcher.Constraint("Tangent", 5, 2, 6, 2),
    Sketcher.Constraint("Tangent", 6, 1, 7, 1),
    Sketcher.Constraint("Coincident", 7, 2, 8, 1),
    Sketcher.Constraint("Coincident", 8, 2, 9, 1),
    Sketcher.Constraint("Coincident", 9, 2, 5, 1),
    Sketcher.Constraint("Vertical", 1),
    Sketcher.Constraint("Horizontal", 2),
    Sketcher.Constraint("Vertical", 3),
    Sketcher.Constraint("Vertical", 7),
    Sketcher.Constraint("Horizontal", 8),
    Sketcher.Constraint("Vertical", 9),
    Sketcher.Constraint("Equal", 4, 6),
    Sketcher.Constraint("PointOnObject", 0, 2, -2),
    Sketcher.Constraint("PointOnObject", 8, 2, -2),
    Sketcher.Constraint("Vertical", 4, 3, 6, 3),
    Sketcher.Constraint("Vertical", 4, 1, 5, 2),
    Sketcher.Constraint("Equal", 3, 7),
    Sketcher.Constraint("DistanceX", 2, 2, 2, 1, 3.0),
    Sketcher.Constraint("Radius", 4, 0.75),
    Sketcher.Constraint("DistanceY", 3, 2, 3, 1, 0.8),
    Sketcher.Constraint("DistanceY", 6, 3, 4, 3, 6.4),
    Sketcher.Constraint("DistanceY", 1, 1, 1, 2, 1.322086),
    Sketcher.Constraint("DistanceY", 4, 3, -1, 1, 6.914289),
])
sketch10.setExpression("Constraints[22]", "Params.sketch10_width")
sketch10.setExpression("Constraints[23]", "Params.sketch10_radius")
sketch10.setExpression("Constraints[24]", "Params.sketch10_height")
pocket4 = body.newObject("PartDesign::Pocket", "Pocket003")
pocket4.Profile = sketch10
pocket4.setExpression("Length", "Params.pocket4_length")

doc.recompute()
